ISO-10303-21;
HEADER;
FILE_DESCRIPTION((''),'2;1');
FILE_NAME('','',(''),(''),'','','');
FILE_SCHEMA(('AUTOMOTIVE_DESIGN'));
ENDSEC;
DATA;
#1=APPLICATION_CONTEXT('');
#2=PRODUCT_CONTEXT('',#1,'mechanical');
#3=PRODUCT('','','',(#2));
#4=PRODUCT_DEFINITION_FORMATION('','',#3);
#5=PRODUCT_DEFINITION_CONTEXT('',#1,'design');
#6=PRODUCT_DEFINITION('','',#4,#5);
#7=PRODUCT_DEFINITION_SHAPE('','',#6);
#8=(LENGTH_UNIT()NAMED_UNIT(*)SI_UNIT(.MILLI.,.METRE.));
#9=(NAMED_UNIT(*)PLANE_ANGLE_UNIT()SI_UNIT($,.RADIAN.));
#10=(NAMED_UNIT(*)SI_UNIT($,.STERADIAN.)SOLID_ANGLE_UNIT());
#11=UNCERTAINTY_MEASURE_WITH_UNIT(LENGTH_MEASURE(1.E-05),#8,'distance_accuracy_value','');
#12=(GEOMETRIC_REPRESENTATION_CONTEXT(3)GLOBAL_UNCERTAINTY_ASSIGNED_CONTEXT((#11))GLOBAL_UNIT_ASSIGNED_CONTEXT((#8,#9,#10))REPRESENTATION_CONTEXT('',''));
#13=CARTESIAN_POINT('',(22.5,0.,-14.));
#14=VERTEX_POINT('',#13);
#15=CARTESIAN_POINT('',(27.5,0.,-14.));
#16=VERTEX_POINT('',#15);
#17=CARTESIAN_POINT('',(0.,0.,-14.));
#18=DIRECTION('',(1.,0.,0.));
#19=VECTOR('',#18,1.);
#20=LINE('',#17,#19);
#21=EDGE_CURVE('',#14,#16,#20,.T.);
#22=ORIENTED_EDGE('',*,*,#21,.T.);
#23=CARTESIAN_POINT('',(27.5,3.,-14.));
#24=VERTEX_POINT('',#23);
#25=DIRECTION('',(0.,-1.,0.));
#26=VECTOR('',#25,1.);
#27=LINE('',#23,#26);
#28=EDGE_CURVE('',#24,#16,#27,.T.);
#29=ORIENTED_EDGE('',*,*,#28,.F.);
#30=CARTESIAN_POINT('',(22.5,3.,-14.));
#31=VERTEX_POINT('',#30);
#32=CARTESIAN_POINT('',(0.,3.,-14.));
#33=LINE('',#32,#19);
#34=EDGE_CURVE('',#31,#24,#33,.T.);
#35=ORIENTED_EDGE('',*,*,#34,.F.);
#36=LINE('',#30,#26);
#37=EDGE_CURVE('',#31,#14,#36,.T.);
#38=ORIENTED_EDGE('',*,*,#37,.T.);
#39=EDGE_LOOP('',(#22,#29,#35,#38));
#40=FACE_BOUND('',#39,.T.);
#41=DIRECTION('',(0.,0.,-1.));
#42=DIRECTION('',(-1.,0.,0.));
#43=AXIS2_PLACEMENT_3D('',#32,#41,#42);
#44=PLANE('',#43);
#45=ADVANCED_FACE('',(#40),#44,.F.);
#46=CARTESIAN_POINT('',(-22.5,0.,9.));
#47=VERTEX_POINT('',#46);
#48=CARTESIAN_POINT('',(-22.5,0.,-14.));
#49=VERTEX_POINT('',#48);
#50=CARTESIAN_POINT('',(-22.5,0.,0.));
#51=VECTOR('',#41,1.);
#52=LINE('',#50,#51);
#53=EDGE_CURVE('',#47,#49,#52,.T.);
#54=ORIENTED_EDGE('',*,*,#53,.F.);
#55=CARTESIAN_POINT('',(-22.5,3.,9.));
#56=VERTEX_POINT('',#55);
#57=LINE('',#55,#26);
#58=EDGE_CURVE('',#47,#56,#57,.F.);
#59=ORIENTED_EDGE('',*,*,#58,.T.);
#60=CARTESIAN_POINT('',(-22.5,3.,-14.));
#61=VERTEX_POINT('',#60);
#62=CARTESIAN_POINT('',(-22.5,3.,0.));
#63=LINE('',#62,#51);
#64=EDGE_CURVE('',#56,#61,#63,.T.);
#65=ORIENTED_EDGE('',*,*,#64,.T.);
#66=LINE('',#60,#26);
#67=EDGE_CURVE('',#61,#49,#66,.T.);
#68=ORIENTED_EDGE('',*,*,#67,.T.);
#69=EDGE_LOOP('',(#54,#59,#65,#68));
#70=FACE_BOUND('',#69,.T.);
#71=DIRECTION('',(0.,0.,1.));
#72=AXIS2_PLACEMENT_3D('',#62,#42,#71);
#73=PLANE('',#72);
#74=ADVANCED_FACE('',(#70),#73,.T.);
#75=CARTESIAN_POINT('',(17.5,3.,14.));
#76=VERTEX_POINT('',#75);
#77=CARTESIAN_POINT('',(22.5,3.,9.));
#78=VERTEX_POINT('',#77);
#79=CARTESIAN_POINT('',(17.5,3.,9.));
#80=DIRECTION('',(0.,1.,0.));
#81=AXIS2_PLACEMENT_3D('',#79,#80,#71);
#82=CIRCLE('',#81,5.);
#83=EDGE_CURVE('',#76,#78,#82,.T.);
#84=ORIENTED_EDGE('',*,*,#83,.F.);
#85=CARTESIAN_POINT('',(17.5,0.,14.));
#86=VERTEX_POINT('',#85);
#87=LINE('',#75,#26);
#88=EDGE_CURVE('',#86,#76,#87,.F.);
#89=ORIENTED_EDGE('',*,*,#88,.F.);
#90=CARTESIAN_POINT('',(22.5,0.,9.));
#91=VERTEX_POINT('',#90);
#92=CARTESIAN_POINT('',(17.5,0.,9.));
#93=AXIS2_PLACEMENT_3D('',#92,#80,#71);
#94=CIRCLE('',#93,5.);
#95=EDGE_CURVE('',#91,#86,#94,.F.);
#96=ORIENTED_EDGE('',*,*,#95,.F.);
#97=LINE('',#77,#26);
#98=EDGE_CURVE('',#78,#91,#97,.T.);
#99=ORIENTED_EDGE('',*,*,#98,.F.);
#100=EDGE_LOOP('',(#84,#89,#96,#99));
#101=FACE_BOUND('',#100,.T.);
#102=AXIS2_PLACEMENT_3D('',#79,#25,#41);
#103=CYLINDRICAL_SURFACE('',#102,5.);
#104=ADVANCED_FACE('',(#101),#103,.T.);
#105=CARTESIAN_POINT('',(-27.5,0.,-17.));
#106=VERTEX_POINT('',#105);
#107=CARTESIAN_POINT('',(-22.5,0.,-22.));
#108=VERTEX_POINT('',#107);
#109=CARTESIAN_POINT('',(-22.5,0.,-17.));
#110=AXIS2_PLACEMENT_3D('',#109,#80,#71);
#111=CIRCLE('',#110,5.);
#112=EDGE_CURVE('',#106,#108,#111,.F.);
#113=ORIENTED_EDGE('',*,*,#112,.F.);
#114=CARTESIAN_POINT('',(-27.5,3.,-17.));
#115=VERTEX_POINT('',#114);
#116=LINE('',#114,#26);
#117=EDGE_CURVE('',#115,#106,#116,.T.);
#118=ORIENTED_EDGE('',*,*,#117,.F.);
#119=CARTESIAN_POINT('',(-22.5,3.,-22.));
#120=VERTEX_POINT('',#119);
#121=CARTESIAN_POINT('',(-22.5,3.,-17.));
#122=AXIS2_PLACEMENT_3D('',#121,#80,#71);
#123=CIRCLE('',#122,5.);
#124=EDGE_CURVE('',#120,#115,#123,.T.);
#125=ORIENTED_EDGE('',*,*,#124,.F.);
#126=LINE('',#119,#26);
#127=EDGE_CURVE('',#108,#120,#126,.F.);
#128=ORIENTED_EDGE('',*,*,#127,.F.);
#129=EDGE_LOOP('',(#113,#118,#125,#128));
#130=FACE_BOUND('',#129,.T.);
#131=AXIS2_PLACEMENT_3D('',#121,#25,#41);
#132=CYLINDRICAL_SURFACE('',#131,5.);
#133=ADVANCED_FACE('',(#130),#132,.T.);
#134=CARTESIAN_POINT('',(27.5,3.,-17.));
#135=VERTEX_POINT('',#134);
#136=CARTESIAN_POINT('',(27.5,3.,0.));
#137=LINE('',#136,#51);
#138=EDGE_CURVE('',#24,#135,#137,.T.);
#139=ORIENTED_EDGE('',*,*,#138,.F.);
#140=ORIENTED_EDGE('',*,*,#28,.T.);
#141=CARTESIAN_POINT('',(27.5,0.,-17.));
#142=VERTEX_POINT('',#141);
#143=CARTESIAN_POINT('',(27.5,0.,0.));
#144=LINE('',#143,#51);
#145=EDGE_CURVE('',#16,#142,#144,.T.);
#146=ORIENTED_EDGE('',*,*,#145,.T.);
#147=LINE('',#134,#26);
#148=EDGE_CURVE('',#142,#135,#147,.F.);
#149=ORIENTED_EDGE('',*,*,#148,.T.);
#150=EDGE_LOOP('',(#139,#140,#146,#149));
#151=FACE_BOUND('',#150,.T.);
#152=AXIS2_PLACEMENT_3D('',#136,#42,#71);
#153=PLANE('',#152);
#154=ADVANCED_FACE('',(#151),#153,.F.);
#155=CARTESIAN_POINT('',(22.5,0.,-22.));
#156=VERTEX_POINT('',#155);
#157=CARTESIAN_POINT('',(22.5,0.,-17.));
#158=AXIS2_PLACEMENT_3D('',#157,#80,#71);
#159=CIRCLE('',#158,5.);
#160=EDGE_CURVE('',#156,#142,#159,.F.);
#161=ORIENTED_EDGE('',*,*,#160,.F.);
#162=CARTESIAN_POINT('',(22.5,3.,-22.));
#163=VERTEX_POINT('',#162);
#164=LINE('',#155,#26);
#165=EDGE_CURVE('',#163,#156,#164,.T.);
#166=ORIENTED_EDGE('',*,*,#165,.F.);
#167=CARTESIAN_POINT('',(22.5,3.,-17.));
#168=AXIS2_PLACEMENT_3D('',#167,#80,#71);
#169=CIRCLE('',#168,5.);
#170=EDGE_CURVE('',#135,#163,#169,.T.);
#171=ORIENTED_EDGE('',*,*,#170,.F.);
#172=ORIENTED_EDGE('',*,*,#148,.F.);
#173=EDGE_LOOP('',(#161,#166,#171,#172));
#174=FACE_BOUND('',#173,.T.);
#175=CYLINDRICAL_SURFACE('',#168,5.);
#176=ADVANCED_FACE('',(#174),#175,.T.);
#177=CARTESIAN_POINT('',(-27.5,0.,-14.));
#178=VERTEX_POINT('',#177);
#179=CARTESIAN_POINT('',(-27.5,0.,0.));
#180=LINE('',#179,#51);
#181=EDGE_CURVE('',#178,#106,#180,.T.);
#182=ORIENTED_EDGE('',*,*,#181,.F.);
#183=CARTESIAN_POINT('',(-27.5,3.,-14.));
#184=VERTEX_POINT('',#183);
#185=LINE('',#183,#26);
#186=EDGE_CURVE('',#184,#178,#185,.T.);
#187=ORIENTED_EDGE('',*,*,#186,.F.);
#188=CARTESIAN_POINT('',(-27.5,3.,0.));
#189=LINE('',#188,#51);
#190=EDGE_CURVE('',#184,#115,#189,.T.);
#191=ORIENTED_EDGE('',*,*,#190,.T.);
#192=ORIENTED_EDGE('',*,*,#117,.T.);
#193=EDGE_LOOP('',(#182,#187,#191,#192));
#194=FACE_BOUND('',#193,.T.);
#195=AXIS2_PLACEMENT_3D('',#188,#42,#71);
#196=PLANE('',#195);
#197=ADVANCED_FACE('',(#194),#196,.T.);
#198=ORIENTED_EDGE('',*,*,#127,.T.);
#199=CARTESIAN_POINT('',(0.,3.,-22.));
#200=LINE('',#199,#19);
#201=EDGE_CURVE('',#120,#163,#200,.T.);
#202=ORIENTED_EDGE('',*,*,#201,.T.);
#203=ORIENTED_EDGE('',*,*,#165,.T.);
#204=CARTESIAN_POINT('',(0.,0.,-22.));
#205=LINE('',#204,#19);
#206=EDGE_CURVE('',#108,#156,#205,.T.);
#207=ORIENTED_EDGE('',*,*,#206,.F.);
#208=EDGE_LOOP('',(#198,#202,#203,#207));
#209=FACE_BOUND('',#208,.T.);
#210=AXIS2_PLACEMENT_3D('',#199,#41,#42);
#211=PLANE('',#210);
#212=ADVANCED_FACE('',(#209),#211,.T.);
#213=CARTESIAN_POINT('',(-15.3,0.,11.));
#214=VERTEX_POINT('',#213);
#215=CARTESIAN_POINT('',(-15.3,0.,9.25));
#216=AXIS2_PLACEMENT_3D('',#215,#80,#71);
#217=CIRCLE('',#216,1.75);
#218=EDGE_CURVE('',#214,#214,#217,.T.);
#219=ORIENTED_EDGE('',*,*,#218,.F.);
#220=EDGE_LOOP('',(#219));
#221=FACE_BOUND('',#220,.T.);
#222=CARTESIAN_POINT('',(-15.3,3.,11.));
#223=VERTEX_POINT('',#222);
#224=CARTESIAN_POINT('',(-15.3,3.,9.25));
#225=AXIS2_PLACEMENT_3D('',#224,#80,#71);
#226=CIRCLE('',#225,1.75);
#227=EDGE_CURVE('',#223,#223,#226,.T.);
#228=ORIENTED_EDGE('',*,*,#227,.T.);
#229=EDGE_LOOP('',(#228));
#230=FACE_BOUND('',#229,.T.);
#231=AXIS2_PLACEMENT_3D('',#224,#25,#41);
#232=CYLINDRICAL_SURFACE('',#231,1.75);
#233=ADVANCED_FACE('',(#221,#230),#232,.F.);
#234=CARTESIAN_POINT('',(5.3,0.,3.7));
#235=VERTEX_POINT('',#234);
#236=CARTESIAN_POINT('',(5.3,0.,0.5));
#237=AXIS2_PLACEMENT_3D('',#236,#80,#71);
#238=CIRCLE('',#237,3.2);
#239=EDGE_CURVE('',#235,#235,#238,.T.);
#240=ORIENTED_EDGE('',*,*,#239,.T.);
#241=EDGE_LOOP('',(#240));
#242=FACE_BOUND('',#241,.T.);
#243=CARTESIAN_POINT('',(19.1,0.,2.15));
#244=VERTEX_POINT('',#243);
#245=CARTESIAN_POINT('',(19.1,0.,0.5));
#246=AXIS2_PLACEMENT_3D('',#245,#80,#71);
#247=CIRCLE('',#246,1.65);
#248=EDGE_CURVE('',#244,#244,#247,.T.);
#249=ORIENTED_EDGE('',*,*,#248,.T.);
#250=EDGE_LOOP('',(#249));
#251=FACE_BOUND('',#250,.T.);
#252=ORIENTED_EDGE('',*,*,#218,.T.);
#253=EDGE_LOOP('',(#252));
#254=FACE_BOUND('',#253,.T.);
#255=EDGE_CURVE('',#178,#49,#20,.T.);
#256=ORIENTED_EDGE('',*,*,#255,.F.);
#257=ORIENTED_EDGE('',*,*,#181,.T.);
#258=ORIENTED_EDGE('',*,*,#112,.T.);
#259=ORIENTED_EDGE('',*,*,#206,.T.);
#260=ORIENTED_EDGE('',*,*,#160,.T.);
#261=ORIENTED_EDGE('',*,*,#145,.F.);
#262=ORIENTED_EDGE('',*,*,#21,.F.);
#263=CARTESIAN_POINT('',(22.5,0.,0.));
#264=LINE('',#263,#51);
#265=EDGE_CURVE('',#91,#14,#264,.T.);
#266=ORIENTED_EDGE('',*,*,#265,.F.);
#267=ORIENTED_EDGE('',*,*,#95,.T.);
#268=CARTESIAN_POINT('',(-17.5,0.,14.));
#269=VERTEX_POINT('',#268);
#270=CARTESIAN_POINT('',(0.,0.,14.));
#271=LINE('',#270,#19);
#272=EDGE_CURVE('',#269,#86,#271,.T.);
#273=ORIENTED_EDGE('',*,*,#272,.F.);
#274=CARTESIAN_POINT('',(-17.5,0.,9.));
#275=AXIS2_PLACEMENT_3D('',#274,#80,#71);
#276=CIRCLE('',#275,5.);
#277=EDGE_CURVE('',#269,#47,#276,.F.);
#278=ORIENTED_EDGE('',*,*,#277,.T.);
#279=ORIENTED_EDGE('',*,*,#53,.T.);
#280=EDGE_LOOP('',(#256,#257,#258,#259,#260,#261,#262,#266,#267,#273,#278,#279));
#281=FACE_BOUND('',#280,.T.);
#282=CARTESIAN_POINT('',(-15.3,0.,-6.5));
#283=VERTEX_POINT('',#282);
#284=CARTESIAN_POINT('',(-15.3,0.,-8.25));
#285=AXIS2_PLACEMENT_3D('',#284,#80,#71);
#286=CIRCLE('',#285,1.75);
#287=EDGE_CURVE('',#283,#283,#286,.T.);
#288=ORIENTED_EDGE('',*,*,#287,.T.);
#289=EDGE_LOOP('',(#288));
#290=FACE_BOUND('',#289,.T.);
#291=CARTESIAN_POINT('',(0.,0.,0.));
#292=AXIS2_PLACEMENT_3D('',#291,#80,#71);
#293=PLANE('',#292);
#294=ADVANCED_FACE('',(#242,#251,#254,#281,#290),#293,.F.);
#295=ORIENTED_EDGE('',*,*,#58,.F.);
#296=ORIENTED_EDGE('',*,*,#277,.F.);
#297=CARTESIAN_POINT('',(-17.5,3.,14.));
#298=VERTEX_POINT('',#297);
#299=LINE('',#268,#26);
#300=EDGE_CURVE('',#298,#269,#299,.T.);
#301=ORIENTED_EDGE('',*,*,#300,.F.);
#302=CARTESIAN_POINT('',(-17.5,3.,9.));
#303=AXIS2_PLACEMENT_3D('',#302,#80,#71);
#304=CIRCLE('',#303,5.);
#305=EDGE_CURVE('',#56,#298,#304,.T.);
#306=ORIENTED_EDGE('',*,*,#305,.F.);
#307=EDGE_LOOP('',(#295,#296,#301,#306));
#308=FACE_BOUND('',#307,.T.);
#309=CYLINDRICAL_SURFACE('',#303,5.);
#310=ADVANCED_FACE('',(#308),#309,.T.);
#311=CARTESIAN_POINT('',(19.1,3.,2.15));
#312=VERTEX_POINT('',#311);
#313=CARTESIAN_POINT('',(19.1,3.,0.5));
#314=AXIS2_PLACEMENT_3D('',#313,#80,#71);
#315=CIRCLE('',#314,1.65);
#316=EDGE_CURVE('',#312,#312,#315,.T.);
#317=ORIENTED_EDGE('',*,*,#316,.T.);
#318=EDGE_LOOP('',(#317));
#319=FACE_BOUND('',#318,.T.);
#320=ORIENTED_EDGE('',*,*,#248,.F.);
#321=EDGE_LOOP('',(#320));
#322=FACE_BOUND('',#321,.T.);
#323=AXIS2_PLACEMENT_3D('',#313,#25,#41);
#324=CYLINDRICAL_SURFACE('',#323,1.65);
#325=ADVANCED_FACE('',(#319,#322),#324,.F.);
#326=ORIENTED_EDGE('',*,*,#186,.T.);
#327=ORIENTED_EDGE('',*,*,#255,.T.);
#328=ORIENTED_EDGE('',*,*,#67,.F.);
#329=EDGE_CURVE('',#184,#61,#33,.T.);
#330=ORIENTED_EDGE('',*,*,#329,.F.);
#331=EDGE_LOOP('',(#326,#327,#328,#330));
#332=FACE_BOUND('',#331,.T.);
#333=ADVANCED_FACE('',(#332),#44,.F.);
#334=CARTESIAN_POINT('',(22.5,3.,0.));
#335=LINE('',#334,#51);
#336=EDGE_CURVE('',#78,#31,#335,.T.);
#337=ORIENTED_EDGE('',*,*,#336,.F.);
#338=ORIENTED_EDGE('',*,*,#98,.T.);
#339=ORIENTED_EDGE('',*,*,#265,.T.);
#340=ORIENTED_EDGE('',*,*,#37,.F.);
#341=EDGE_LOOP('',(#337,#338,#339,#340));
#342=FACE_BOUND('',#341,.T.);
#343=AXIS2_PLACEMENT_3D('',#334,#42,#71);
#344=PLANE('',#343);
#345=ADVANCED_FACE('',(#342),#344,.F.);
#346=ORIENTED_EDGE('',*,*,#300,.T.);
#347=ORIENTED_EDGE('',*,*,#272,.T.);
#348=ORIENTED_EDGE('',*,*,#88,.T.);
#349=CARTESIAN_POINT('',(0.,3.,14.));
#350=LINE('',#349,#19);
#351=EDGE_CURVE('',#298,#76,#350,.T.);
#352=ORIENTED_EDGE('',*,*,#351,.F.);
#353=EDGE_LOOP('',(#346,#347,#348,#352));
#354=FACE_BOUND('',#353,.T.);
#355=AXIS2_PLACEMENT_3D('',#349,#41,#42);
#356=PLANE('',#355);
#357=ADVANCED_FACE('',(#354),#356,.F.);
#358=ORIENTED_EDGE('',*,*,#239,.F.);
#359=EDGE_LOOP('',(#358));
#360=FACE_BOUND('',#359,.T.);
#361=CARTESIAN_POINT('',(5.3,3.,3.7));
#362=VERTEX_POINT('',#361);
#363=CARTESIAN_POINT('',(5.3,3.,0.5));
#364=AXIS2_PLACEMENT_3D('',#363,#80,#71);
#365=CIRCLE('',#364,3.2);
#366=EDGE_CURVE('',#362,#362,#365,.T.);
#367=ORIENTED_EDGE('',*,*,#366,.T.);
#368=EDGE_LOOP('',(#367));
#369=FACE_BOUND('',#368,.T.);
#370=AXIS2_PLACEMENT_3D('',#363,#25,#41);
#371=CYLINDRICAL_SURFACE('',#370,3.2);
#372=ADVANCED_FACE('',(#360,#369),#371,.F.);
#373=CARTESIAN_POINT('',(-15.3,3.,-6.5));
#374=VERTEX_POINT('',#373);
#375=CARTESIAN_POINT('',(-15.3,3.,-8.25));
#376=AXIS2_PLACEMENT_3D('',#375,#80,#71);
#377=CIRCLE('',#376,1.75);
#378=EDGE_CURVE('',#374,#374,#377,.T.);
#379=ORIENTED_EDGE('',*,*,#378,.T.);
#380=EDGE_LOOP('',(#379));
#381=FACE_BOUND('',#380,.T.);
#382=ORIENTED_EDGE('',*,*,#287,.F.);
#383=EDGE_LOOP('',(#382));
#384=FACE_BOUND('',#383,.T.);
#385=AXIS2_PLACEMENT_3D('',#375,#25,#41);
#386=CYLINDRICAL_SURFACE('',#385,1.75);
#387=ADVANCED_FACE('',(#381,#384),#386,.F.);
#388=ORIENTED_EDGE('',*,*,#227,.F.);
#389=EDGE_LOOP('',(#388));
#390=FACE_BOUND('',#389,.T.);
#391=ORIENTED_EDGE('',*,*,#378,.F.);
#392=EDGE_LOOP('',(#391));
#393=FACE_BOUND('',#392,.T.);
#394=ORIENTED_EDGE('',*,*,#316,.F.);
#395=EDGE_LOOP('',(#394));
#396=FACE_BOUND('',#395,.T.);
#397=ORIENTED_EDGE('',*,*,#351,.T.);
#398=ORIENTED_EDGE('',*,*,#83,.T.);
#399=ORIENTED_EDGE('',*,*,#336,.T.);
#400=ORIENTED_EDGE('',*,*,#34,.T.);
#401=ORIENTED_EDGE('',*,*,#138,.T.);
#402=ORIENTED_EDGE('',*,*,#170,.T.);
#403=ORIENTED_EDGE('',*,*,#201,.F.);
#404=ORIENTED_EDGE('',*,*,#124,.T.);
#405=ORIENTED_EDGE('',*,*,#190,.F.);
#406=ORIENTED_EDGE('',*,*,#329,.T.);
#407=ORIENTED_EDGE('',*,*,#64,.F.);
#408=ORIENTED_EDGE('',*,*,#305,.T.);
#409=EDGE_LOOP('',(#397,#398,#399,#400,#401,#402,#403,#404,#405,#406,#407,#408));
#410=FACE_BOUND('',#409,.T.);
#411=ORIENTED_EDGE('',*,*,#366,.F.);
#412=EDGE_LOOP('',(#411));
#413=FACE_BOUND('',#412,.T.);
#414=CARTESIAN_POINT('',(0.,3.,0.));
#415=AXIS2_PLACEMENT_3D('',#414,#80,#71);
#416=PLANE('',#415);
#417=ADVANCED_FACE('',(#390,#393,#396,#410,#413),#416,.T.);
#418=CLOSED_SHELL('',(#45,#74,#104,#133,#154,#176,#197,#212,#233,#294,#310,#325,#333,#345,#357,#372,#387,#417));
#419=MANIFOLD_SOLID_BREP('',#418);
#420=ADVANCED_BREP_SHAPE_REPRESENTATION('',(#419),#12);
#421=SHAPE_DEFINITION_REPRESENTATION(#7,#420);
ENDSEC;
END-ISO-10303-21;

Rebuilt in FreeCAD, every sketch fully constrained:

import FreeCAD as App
import Part
import Sketcher


def edges_at(feature, points):
    """Names of the edges that pass closest to the given points."""
    edges = feature.Shape.Edges
    near = lambda p: min(range(len(edges)), key=lambda i: edges[i].distToShape(Part.Vertex(*p))[0])
    return sorted({f"Edge{near(p) + 1}" for p in points})


def add_polygon(sketch, points):
    """Adds a closed chain of lines whose ends are joined by coincident constraints."""
    first, n = sketch.GeometryCount, len(points)
    for a, b in zip(points, points[1:] + points[:1]):
        sketch.addGeometry(Part.LineSegment(App.Vector(*a, 0), App.Vector(*b, 0)), False)
    for i in range(n):
        sketch.addConstraint(Sketcher.Constraint("Coincident", first + i, 2, first + (i + 1) % n, 1))

doc = App.newDocument("Part")
params = doc.addObject("Spreadsheet::Sheet", "Params")
for row, (alias, value) in enumerate([
    ("sketch1_diameter", "3.3 mm"),
    ("sketch1_diameter2", "3.5 mm"),
    ("sketch1_diameter3", "6.4 mm"),
    ("sketch1_width", "5 mm"),
    ("sketch1_width2", "45 mm"),
    ("pad1_length", "3 mm"),
    ("fillet_radius", "5 mm"),
], start=1):
    params.set(f"A{row}", alias)
    params.set(f"B{row}", "=" + value)
    params.setAlias(f"B{row}", alias)

body = doc.addObject("PartDesign::Body", "Body")

# Sketch on XZ plane
sketch1 = body.newObject("Sketcher::SketchObject", "Sketch")
sketch1.AttachmentSupport = (doc.getObject("XZ_Plane"), [""])
sketch1.MapMode = "FlatFace"
add_polygon(sketch1, [(-27.5, -14), (-22.5, -14), (-22.5, 14), (22.5, 14), (22.5, -14), (27.5, -14), (27.5, -22), (-27.5, -22)])  # lines 0-7
sketch1.addGeometry(Part.Circle(App.Vector(19.1, 0.5, 0), App.Vector(0, 0, 1), 1.6), False)  # 8
sketch1.addGeometry(Part.Circle(App.Vector(-15.3, 9.2, 0), App.Vector(0, 0, 1), 1.8), False)  # 9
sketch1.addGeometry(Part.Circle(App.Vector(-15.3, -8.2, 0), App.Vector(0, 0, 1), 1.8), False)  # 10
sketch1.addGeometry(Part.Circle(App.Vector(5.3, 0.5, 0), App.Vector(0, 0, 1), 3.2), False)  # 11
sketch1.addConstraint([
    Sketcher.Constraint("Horizontal", 0),
    Sketcher.Constraint("Vertical", 1),
    Sketcher.Constraint("Horizontal", 2),
    Sketcher.Constraint("Vertical", 3),
    Sketcher.Constraint("Horizontal", 4),
    Sketcher.Constraint("Vertical", 5),
    Sketcher.Constraint("Horizontal", 6),
    Sketcher.Constraint("Vertical", 7),
    Sketcher.Constraint("Equal", 9, 10),
    Sketcher.Constraint("Symmetric", 0, 2, 2, 2, -1, 1),
    Sketcher.Constraint("Symmetric", 4, 2, 7, 2, -2),
    Sketcher.Constraint("Horizontal", 8, 3, 11, 3),
    Sketcher.Constraint("Vertical", 9, 3, 10, 3),
    Sketcher.Constraint("Diameter", 8, 3.3),
    Sketcher.Constraint("Diameter", 9, 3.5),
    Sketcher.Constraint("Diameter", 11, 6.4),
    Sketcher.Constraint("DistanceX", 0, 1, 0, 2, 5.0),
    Sketcher.Constraint("DistanceX", 2, 1, 2, 2, 45.0),
    Sketcher.Constraint("DistanceY", 1, 1, 1, 2, 28.0),
    Sketcher.Constraint("DistanceY", 5, 2, 5, 1, 8.0),
    Sketcher.Constraint("DistanceX", -1, 1, 8, 3, 19.1),
    Sketcher.Constraint("DistanceY", -1, 1, 8, 3, 0.5),
    Sketcher.Constraint("DistanceX", 9, 3, -1, 1, 15.3),
    Sketcher.Constraint("DistanceX", -1, 1, 11, 3, 5.3),
    Sketcher.Constraint("DistanceY", 10, 3, 9, 3, 17.5),
    Sketcher.Constraint("DistanceY", -1, 1, 9, 3, 9.25),
])
sketch1.setExpression("Constraints[21]", "Params.sketch1_diameter")
sketch1.setExpression("Constraints[22]", "Params.sketch1_diameter2")
sketch1.setExpression("Constraints[23]", "Params.sketch1_diameter3")
sketch1.setExpression("Constraints[24]", "Params.sketch1_width")
sketch1.setExpression("Constraints[25]", "Params.sketch1_width2")
pad1 = body.newObject("PartDesign::Pad", "Pad")
pad1.Profile = sketch1
pad1.setExpression("Length", "Params.pad1_length")
pad1.Reversed = True
doc.recompute()

fillet = body.newObject("PartDesign::Fillet", "Fillet")
fillet.Base = (pad1, edges_at(pad1, [
    (-27.5, 1.5, -22),
    (27.5, 1.5, -22),
    (22.5, 1.5, 14),
    (-22.5, 1.5, 14),
]))
fillet.setExpression("Radius", "Params.fillet_radius")

doc.recompute()
